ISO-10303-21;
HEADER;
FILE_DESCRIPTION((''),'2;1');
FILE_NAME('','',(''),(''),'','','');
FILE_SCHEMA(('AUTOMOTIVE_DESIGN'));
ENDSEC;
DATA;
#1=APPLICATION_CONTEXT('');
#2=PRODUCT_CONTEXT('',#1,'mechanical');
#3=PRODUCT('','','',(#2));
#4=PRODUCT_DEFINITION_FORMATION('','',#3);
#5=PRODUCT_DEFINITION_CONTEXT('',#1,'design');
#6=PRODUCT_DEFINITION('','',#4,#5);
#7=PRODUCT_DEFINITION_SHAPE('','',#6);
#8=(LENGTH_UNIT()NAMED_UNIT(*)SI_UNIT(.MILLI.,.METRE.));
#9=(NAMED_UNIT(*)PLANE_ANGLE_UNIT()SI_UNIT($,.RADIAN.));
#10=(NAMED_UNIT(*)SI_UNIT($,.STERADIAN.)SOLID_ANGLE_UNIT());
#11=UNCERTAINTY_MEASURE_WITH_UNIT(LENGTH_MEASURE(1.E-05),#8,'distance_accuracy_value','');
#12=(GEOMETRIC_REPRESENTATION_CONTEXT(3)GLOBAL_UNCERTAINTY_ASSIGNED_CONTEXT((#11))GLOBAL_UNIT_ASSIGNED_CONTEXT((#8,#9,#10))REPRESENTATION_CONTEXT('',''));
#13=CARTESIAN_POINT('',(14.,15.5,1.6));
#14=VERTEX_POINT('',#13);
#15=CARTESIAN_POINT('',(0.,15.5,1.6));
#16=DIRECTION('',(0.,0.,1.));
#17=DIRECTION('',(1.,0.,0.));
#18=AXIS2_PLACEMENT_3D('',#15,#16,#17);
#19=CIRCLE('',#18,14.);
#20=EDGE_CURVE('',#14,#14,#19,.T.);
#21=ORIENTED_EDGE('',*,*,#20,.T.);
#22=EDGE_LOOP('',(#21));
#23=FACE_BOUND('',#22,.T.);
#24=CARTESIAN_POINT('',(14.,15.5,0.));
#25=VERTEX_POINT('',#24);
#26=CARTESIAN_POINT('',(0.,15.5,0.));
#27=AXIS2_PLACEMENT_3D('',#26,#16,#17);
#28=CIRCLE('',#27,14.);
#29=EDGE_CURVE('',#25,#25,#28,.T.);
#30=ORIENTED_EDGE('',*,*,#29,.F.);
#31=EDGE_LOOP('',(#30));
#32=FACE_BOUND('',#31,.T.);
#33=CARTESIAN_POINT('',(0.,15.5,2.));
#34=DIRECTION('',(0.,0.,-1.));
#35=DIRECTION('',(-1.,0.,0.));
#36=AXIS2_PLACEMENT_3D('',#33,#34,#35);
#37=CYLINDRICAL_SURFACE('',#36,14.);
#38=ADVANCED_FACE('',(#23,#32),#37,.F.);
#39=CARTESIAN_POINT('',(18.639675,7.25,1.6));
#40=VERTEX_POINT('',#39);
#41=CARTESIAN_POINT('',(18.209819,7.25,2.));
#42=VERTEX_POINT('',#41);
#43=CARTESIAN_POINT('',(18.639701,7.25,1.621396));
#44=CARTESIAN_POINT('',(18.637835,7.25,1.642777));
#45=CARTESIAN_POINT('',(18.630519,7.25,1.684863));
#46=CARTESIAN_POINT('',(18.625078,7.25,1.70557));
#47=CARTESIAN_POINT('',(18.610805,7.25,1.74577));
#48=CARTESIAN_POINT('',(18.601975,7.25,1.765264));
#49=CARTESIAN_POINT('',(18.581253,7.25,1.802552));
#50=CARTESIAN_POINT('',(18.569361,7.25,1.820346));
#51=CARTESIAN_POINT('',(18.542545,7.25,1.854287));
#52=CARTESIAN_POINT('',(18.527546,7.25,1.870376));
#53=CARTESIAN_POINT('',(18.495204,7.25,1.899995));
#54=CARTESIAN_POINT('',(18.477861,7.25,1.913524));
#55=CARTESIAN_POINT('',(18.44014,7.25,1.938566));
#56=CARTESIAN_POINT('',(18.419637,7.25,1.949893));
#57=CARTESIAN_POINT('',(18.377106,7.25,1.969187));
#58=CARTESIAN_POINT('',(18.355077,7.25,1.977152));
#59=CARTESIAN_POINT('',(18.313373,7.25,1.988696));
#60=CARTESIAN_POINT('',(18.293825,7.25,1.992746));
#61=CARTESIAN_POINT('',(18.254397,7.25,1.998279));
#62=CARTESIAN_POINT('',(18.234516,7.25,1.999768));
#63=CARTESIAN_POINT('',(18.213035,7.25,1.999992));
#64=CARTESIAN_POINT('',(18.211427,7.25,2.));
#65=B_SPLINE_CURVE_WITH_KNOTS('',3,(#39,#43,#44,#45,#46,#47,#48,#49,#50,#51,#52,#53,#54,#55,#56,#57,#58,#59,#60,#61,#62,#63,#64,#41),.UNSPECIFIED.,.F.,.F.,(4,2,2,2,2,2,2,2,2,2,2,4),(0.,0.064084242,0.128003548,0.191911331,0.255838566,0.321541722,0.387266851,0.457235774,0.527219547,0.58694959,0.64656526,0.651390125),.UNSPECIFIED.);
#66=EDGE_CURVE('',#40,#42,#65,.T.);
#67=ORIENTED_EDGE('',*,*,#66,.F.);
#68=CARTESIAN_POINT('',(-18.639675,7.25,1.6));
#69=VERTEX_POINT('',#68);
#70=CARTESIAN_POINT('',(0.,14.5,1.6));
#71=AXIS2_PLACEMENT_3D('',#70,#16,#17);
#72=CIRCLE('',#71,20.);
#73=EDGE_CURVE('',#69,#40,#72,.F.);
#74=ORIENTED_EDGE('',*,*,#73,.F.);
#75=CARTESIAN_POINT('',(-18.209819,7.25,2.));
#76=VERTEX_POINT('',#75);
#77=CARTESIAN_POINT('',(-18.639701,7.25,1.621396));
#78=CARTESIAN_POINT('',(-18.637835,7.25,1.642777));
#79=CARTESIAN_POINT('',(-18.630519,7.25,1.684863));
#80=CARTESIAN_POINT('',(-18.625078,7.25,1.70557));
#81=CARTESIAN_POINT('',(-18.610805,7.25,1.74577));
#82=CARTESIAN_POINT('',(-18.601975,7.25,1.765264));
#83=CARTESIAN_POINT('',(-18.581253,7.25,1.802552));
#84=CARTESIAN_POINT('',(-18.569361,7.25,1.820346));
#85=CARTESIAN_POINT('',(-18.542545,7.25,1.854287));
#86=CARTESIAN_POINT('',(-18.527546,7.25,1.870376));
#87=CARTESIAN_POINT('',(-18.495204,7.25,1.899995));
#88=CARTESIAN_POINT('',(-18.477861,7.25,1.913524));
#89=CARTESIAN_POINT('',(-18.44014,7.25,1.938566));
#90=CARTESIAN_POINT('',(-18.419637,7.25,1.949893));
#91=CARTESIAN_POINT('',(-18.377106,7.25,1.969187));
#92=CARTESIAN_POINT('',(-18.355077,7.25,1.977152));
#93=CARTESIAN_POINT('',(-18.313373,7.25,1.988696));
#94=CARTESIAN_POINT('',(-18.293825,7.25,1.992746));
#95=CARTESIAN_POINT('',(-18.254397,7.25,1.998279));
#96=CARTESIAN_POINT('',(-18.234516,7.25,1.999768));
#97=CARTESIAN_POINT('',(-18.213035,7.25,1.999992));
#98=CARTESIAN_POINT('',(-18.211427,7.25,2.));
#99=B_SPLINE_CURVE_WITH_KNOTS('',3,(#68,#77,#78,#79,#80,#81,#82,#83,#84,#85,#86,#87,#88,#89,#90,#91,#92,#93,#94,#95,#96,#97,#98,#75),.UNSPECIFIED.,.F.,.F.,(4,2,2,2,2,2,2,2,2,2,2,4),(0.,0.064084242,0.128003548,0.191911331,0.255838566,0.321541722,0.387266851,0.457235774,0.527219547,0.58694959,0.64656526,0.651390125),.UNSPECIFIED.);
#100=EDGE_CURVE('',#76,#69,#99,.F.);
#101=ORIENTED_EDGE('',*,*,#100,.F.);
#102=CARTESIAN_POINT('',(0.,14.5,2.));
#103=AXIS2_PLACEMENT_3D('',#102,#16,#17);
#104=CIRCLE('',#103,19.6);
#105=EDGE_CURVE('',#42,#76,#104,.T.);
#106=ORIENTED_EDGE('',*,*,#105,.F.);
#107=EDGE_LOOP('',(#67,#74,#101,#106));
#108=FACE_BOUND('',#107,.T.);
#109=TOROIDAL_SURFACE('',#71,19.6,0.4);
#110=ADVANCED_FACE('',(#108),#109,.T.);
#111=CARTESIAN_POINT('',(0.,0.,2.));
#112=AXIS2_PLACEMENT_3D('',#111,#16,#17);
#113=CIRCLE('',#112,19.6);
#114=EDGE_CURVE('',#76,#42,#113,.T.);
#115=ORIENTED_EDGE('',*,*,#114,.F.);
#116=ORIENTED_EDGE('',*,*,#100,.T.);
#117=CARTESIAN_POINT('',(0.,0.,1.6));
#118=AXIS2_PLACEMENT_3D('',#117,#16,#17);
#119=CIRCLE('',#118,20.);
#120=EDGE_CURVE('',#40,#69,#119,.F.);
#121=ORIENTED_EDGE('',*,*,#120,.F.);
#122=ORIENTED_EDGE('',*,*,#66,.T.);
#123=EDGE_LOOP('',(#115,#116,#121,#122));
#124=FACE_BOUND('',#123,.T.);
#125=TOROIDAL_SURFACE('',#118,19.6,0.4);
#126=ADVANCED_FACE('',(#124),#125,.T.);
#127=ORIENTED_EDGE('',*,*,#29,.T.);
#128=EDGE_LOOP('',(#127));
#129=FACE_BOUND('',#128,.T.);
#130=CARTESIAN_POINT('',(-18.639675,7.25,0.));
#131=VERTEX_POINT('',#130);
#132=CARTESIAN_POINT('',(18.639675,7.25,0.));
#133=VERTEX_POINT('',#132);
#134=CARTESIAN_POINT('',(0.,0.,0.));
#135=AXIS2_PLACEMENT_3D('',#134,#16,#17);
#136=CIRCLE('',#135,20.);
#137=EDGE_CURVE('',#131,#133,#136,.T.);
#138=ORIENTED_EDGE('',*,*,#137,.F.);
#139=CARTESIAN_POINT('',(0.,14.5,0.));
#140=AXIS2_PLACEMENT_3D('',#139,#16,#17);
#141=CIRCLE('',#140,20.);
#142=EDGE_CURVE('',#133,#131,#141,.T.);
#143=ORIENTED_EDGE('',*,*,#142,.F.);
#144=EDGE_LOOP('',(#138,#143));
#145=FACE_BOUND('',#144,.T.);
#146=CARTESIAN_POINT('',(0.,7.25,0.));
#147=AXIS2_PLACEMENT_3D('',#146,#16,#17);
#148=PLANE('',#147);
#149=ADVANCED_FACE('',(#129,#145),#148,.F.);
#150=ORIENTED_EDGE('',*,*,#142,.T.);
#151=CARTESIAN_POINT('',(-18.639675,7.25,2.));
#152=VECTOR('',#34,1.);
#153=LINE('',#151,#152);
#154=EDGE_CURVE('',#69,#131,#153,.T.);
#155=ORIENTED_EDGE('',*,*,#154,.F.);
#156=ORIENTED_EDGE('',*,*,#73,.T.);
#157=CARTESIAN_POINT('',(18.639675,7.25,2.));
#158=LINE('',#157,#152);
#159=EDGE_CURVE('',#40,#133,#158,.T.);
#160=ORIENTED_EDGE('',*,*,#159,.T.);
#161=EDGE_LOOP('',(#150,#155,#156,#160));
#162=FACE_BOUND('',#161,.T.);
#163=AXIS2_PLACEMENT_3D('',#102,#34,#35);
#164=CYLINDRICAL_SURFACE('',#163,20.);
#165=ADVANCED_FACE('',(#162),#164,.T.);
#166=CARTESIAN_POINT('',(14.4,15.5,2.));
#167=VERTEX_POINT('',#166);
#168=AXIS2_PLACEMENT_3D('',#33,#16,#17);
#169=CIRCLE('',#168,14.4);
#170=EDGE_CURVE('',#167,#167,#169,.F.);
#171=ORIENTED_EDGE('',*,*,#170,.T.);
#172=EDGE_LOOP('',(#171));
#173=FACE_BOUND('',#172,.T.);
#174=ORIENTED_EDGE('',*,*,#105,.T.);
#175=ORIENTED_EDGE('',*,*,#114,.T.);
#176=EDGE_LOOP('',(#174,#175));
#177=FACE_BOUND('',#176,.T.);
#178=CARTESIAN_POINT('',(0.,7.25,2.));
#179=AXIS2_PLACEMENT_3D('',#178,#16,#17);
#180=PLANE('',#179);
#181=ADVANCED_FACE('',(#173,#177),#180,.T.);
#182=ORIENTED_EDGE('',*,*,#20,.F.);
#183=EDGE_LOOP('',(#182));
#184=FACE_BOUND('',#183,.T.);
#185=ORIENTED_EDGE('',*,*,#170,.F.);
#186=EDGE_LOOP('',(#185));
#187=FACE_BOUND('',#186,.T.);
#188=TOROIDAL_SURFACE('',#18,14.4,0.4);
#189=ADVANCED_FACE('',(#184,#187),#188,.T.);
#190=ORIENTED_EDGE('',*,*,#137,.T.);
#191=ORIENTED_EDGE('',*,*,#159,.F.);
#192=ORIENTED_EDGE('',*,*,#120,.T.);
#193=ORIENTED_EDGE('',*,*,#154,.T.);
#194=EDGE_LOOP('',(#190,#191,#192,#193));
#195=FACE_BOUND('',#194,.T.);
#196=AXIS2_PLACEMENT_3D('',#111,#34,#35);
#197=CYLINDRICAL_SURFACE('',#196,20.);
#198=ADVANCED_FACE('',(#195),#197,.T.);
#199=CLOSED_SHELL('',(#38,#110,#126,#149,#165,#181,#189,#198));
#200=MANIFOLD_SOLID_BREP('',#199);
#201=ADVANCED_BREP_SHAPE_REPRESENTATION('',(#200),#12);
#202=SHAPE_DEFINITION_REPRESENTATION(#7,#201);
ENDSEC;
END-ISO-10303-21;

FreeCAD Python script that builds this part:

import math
import FreeCAD as App
import Part
import Sketcher
from FreeCAD import Vector


def edges_at(feature, points):
    """Names of the edges that pass closest to the given points."""
    edges = feature.Shape.Edges
    near = lambda p: min(range(len(edges)), key=lambda i: edges[i].distToShape(Part.Vertex(*p))[0])
    return sorted({f"Edge{near(p) + 1}" for p in points})

doc = App.newDocument("Part")
body = doc.addObject("PartDesign::Body", "Body")

# Sketch on XY plane
sketch1 = body.newObject("Sketcher::SketchObject", "Sketch")
sketch1.AttachmentSupport = (doc.getObject("XY_Plane"), [""])
sketch1.MapMode = "FlatFace"
sketch1.addGeometry([
    Part.ArcOfCircle(Part.Circle(Vector(0, 0, 0), Vector(0, 0, 1), 20), math.radians(159), math.radians(381)),
    Part.ArcOfCircle(Part.Circle(Vector(0, 14, 0), Vector(0, 0, 1), 20), math.radians(-21), math.radians(201)),
    Part.Circle(Vector(0, 16, 0), Vector(0, 0, 1), 14),
], False)
sketch1.addConstraint([
    Sketcher.Constraint("Coincident", 0, 1, 1, 2),
    Sketcher.Constraint("Coincident", 1, 1, 0, 2),
    Sketcher.Constraint("Coincident", 0, 3, -1, 1),
    Sketcher.Constraint("Equal", 0, 1),
    Sketcher.Constraint("PointOnObject", 1, 3, -2),
    Sketcher.Constraint("PointOnObject", 2, 3, -2),
    Sketcher.Constraint("Diameter", 2, 28.0),
    Sketcher.Constraint("Radius", 0, 20.0),
    Sketcher.Constraint("DistanceY", 1, 3, 2, 3, 1.0),
    Sketcher.Constraint("DistanceY", -1, 1, 1, 3, 14.5),
])
pad1 = body.newObject("PartDesign::Pad", "Pad")
pad1.Profile = sketch1
pad1.Length = 2
doc.recompute()

fillet = body.newObject("PartDesign::Fillet", "Fillet")
fillet.Base = (pad1, edges_at(pad1, [(0, 34.5, 2), (-14, 15.5, 2), (0, -20, 2)]))
fillet.Radius = 0.4

doc.recompute()
